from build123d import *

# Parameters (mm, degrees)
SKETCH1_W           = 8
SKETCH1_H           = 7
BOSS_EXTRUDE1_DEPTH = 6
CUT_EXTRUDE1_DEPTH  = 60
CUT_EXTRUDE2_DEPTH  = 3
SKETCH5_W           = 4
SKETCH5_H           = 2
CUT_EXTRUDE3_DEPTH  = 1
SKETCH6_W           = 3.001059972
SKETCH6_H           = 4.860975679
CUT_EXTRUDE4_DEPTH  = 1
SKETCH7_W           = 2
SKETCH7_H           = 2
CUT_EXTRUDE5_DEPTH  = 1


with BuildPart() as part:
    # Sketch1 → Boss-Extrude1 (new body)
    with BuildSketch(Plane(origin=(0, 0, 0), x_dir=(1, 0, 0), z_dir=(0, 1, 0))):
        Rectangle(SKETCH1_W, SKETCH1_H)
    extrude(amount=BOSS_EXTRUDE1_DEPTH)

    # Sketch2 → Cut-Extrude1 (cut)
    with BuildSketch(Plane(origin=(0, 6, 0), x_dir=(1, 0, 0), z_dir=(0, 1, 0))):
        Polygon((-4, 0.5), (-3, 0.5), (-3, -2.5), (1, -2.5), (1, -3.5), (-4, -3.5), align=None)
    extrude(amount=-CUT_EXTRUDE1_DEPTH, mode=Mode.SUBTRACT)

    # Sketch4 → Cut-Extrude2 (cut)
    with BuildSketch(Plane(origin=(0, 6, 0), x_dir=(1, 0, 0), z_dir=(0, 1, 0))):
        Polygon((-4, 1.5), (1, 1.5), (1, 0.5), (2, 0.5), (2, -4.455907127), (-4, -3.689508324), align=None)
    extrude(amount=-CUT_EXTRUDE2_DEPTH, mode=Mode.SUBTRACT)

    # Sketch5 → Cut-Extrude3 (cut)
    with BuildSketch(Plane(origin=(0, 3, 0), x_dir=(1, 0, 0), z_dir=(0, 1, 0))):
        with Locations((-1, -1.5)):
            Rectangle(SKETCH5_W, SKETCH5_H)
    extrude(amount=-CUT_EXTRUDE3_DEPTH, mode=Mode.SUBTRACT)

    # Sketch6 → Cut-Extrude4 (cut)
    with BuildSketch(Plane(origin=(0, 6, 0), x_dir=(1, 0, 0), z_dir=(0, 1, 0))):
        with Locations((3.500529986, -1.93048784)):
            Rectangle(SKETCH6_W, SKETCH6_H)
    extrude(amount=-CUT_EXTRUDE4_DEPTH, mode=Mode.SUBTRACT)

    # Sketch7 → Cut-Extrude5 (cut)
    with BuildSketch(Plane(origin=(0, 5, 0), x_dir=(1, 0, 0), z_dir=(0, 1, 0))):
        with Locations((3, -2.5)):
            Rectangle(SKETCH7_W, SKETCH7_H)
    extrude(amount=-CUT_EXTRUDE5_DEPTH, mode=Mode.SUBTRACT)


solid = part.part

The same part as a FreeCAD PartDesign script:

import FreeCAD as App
import Part
import Sketcher

V = App.Vector


def add_polygon(sketch, points):
    """Adds a closed chain of lines whose ends are joined by coincident constraints."""
    first, n = sketch.GeometryCount, len(points)
    for a, b in zip(points, points[1:] + points[:1]):
        sketch.addGeometry(Part.LineSegment(App.Vector(*a, 0), App.Vector(*b, 0)), False)
    for i in range(n):
        sketch.addConstraint(Sketcher.Constraint("Coincident", first + i, 2, first + (i + 1) % n, 1))

doc = App.newDocument("Part")
params = doc.addObject("Spreadsheet::Sheet", "Params")
for row, (alias, value) in enumerate([
    ("sketch1_width", "8 mm"),
    ("sketch1_height", "7 mm"),
    ("pad1_length", "6 mm"),
    ("sketch2_width", "1 mm"),
    ("sketch2_width2", "5 mm"),
    ("pocket1_length", "60 mm"),
    ("sketch3_width", "5 mm"),
    ("sketch3_width2", "1 mm"),
    ("pocket2_length", "3 mm"),
    ("sketch4_width", "4 mm"),
    ("sketch4_height", "2 mm"),
    ("pocket3_length", "1 mm"),
    ("pocket4_length", "1 mm"),
    ("sketch6_width", "2 mm"),
    ("pocket5_length", "1 mm"),
], start=1):
    params.set(f"A{row}", alias)
    params.set(f"B{row}", "=" + value)
    params.setAlias(f"B{row}", alias)

body = doc.addObject("PartDesign::Body", "Body")

# Sketch on XZ plane
sketch1 = body.newObject("Sketcher::SketchObject", "Sketch")
sketch1.AttachmentSupport = (doc.getObject("XZ_Plane"), [""])
sketch1.MapMode = "FlatFace"
add_polygon(sketch1, [(-4, -3.5), (-4, 3.5), (4, 3.5), (4, -3.5)])  # lines 0-3
sketch1.addConstraint([
    Sketcher.Constraint("Vertical", 0),
    Sketcher.Constraint("Horizontal", 1),
    Sketcher.Constraint("Vertical", 2),
    Sketcher.Constraint("Horizontal", 3),
    Sketcher.Constraint("Symmetric", 0, 2, 2, 2, -1, 1),
    Sketcher.Constraint("DistanceX", 1, 1, 1, 2, 8.0),
    Sketcher.Constraint("DistanceY", 0, 1, 0, 2, 7.0),
])
sketch1.setExpression("Constraints[9]", "Params.sketch1_width")
sketch1.setExpression("Constraints[10]", "Params.sketch1_height")
pad1 = body.newObject("PartDesign::Pad", "Pad")
pad1.Profile = sketch1
pad1.setExpression("Length", "Params.pad1_length")
pad1.Reversed = True

# Sketch on XZ plane
sketch2 = body.newObject("Sketcher::SketchObject", "Sketch001")
sketch2.AttachmentSupport = (doc.getObject("XZ_Plane"), [""])
sketch2.MapMode = "FlatFace"
sketch2.AttachmentOffset = App.Placement(V(0, 0, -6), App.Rotation())
add_polygon(sketch2, [(-3, -0.5), (-4, -0.5), (-4, 3.5), (1, 3.5), (1, 2.5), (-3, 2.5)])  # lines 0-5
sketch2.addConstraint([
    Sketcher.Constraint("Horizontal", 0),
    Sketcher.Constraint("Vertical", 1),
    Sketcher.Constraint("Horizontal", 2),
    Sketcher.Constraint("Vertical", 3),
    Sketcher.Constraint("Horizontal", 4),
    Sketcher.Constraint("Vertical", 5),
    Sketcher.Constraint("Equal", 4, 1),
    Sketcher.Constraint("Equal", 0, 3),
    Sketcher.Constraint("DistanceX", 0, 2, 0, 1, 1.0),
    Sketcher.Constraint("DistanceX", 2, 1, 2, 2, 5.0),
    Sketcher.Constraint("DistanceX", 0, 2, -1, 1, 4.0),
    Sketcher.Constraint("DistanceY", 0, 2, -1, 1, 0.5),
])
sketch2.setExpression("Constraints[14]", "Params.sketch2_width")
sketch2.setExpression("Constraints[15]", "Params.sketch2_width2")
pocket1 = body.newObject("PartDesign::Pocket", "Pocket")
pocket1.Profile = sketch2
pocket1.setExpression("Length", "Params.pocket1_length")
pocket1.Reversed = True

# Sketch on XZ plane
sketch3 = body.newObject("Sketcher::SketchObject", "Sketch002")
sketch3.AttachmentSupport = (doc.getObject("XZ_Plane"), [""])
sketch3.MapMode = "FlatFace"
sketch3.AttachmentOffset = App.Placement(V(0, 0, -6), App.Rotation())
add_polygon(sketch3, [(1, -1.5), (-4, -1.5), (-4, 3.689508), (2, 4.455907), (2, -0.5), (1, -0.5)])  # lines 0-5
sketch3.addConstraint([
    Sketcher.Constraint("Horizontal", 0),
    Sketcher.Constraint("Vertical", 1),
    Sketcher.Constraint("Vertical", 3),
    Sketcher.Constraint("Horizontal", 4),
    Sketcher.Constraint("Vertical", 5),
    Sketcher.Constraint("Equal", 4, 5),
    Sketcher.Constraint("DistanceX", 0, 2, 0, 1, 5.0),
    Sketcher.Constraint("DistanceX", 4, 2, 4, 1, 1.0),
    Sketcher.Constraint("DistanceX", 0, 2, -1, 1, 4.0),
    Sketcher.Constraint("DistanceY", 0, 2, -1, 1, 1.5),
    Sketcher.Constraint("DistanceY", 1, 1, 1, 2, 5.189508),
    Sketcher.Constraint("DistanceY", 1, 2, 2, 2, 0.766399),
])
sketch3.setExpression("Constraints[12]", "Params.sketch3_width")
sketch3.setExpression("Constraints[13]", "Params.sketch3_width2")
pocket2 = body.newObject("PartDesign::Pocket", "Pocket001")
pocket2.Profile = sketch3
pocket2.setExpression("Length", "Params.pocket2_length")
pocket2.Reversed = True

# Sketch on XZ plane
sketch4 = body.newObject("Sketcher::SketchObject", "Sketch003")
sketch4.AttachmentSupport = (doc.getObject("XZ_Plane"), [""])
sketch4.MapMode = "FlatFace"
sketch4.AttachmentOffset = App.Placement(V(0, 0, -3), App.Rotation())
add_polygon(sketch4, [(-3, 0.5), (-3, 2.5), (1, 2.5), (1, 0.5)])  # lines 0-3
sketch4.addConstraint([
    Sketcher.Constraint("Vertical", 0),
    Sketcher.Constraint("Horizontal", 1),
    Sketcher.Constraint("Vertical", 2),
    Sketcher.Constraint("Horizontal", 3),
    Sketcher.Constraint("DistanceX", 1, 1, 1, 2, 4.0),
    Sketcher.Constraint("DistanceY", 0, 1, 0, 2, 2.0),
    Sketcher.Constraint("DistanceX", 0, 2, -1, 1, 3.0),
    Sketcher.Constraint("DistanceY", -1, 1, 0, 2, 2.5),
])
sketch4.setExpression("Constraints[8]", "Params.sketch4_width")
sketch4.setExpression("Constraints[9]", "Params.sketch4_height")
pocket3 = body.newObject("PartDesign::Pocket", "Pocket002")
pocket3.Profile = sketch4
pocket3.setExpression("Length", "Params.pocket3_length")
pocket3.Reversed = True

# Sketch on XZ plane
sketch5 = body.newObject("Sketcher::SketchObject", "Sketch004")
sketch5.AttachmentSupport = (doc.getObject("XZ_Plane"), [""])
sketch5.MapMode = "FlatFace"
sketch5.AttachmentOffset = App.Placement(V(0, 0, -6), App.Rotation())
add_polygon(sketch5, [(2, -0.5), (2, 4.360976), (5.00106, 4.360976), (5.00106, -0.5)])  # lines 0-3
sketch5.addConstraint([
    Sketcher.Constraint("Vertical", 0),
    Sketcher.Constraint("Horizontal", 1),
    Sketcher.Constraint("Vertical", 2),
    Sketcher.Constraint("Horizontal", 3),
    Sketcher.Constraint("DistanceX", -1, 1, 0, 2, 2.0),
    Sketcher.Constraint("DistanceY", 2, 2, -1, 1, 0.5),
    Sketcher.Constraint("DistanceX", 1, 1, 1, 2, 3.00106),
    Sketcher.Constraint("DistanceY", 0, 1, 0, 2, 4.860976),
])
pocket4 = body.newObject("PartDesign::Pocket", "Pocket003")
pocket4.Profile = sketch5
pocket4.setExpression("Length", "Params.pocket4_length")
pocket4.Reversed = True

# Sketch on XZ plane
sketch6 = body.newObject("Sketcher::SketchObject", "Sketch005")
sketch6.AttachmentSupport = (doc.getObject("XZ_Plane"), [""])
sketch6.MapMode = "FlatFace"
sketch6.AttachmentOffset = App.Placement(V(0, 0, -5), App.Rotation())
add_polygon(sketch6, [(2, 1.5), (2, 3.5), (4, 3.5), (4, 1.5)])  # lines 0-3
sketch6.addConstraint([
    Sketcher.Constraint("Vertical", 0),
    Sketcher.Constraint("Horizontal", 1),
    Sketcher.Constraint("Vertical", 2),
    Sketcher.Constraint("Horizontal", 3),
    Sketcher.Constraint("Equal", 3, 0),
    Sketcher.Constraint("DistanceX", 1, 1, 1, 2, 2.0),
    Sketcher.Constraint("DistanceX", -1, 1, 0, 2, 2.0),
    Sketcher.Constraint("DistanceY", -1, 1, 0, 2, 3.5),
])
sketch6.setExpression("Constraints[9]", "Params.sketch6_width")
pocket5 = body.newObject("PartDesign::Pocket", "Pocket004")
pocket5.Profile = sketch6
pocket5.setExpression("Length", "Params.pocket5_length")
pocket5.Reversed = True

doc.recompute()
